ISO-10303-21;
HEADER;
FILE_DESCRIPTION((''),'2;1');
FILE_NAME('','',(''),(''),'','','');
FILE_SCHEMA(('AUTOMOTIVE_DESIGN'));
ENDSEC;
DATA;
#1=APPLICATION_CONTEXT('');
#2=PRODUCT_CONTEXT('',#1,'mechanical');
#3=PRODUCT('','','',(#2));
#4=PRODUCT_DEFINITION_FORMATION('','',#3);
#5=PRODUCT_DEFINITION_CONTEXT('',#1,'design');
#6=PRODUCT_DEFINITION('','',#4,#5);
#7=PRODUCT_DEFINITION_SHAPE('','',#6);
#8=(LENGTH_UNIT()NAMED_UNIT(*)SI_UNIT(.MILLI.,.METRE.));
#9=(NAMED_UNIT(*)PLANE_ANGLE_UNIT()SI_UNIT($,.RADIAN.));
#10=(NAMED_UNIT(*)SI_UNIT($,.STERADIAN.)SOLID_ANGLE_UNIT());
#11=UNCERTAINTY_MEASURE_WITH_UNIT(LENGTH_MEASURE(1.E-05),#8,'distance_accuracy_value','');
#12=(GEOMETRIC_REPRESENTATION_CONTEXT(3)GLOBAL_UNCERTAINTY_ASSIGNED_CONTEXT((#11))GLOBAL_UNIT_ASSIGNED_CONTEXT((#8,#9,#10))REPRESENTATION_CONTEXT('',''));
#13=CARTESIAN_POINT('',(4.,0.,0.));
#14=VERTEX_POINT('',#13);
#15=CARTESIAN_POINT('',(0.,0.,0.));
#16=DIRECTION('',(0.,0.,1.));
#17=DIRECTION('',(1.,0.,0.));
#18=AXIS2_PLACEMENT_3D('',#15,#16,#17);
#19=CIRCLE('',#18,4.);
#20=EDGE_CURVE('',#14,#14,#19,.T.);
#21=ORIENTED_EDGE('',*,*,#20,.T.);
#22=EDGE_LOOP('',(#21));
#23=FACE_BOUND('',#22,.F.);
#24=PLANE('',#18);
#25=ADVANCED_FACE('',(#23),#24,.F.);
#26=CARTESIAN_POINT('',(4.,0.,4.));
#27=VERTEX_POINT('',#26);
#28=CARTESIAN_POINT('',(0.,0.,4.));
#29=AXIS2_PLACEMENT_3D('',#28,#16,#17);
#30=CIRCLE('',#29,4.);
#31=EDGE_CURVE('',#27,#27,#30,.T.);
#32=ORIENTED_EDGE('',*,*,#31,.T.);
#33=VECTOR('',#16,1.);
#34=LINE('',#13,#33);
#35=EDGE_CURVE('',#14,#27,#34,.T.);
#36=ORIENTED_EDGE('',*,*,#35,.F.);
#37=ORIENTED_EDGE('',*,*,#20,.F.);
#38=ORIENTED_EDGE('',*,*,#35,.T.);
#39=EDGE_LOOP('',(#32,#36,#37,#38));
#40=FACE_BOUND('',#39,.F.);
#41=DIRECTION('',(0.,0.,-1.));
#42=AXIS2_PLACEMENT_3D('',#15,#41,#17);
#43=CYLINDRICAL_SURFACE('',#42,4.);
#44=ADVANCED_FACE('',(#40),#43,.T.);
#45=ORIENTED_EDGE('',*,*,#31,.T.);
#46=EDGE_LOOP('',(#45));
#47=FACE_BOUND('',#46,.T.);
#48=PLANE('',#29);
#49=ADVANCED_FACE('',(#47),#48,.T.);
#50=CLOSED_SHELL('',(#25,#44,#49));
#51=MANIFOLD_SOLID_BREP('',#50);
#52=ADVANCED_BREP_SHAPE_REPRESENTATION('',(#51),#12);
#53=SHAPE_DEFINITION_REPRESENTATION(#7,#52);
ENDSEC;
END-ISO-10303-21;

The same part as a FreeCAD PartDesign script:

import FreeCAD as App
import Part
import Sketcher

V = App.Vector
Q = App.Units.Quantity

doc = App.newDocument("Part")
body = doc.addObject("PartDesign::Body", "Body")

# Sketch on XY plane
sketch1 = body.newObject("Sketcher::SketchObject", "Sketch")
sketch1.AttachmentSupport = (doc.getObject("XY_Plane"), [""])
sketch1.MapMode = "FlatFace"
sketch1.addGeometry(Part.Circle(V(0, 0, 0), V(0, 0, 1), 4), False)
sketch1.addConstraint([
    Sketcher.Constraint("Coincident", 0, 3, -1, 1),
    Sketcher.Constraint("Diameter", 0, Q("8 mm")),
])
pad1 = body.newObject("PartDesign::Pad", "Pad")
pad1.Profile = sketch1
pad1.Length = 4

doc.recompute()
